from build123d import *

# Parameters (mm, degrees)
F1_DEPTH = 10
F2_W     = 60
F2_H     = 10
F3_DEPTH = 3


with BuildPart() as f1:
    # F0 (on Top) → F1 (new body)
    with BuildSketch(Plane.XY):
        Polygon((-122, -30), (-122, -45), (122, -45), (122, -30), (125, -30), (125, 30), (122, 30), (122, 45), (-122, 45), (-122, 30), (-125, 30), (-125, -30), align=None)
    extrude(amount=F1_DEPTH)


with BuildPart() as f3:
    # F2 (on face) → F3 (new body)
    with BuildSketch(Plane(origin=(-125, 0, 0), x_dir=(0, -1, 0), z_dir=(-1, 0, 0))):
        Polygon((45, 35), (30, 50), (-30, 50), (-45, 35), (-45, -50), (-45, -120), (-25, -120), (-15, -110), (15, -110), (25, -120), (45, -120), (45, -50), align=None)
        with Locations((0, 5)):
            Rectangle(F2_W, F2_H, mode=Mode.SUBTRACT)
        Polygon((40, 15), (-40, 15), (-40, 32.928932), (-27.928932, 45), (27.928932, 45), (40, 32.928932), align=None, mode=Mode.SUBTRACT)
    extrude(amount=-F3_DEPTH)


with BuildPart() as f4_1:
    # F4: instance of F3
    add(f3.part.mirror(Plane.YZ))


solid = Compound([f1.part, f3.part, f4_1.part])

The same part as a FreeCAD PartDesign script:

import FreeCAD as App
import Part
import Sketcher
from FreeCAD import Vector

doc = App.newDocument("Part")
params = doc.addObject("Spreadsheet::Sheet", "Params")
for row, (alias, value) in enumerate([
    ("sketch1_width", "244 mm"),
    ("sketch1_width2", "3 mm"),
    ("sketch1_height", "15 mm"),
    ("sketch1_height2", "60 mm"),
    ("pad1_length", "10 mm"),
    ("sketch2_width", "60 mm"),
    ("sketch2_width2", "20 mm"),
    ("sketch2_width3", "30 mm"),
    ("sketch2_width4", "80 mm"),
    ("sketch2_height", "155 mm"),
    ("pad2_length", "3 mm"),
], start=1):
    params.set(f"A{row}", alias)
    params.set(f"B{row}", "=" + value)
    params.setAlias(f"B{row}", alias)

body = doc.addObject("PartDesign::Body", "Body")

# Sketch on XY plane
sketch1 = body.newObject("Sketcher::SketchObject", "Sketch")
sketch1.AttachmentSupport = (doc.getObject("XY_Plane"), [""])
sketch1.MapMode = "FlatFace"
sketch1.addGeometry(Part.LineSegment(Vector(-122, -30, 0), Vector(-122, -45, 0)), False)
sketch1.addGeometry(Part.LineSegment(Vector(-122, -45, 0), Vector(122, -45, 0)), False)
sketch1.addGeometry(Part.LineSegment(Vector(122, -45, 0), Vector(122, -30, 0)), False)
sketch1.addGeometry(Part.LineSegment(Vector(122, -30, 0), Vector(125, -30, 0)), False)
sketch1.addGeometry(Part.LineSegment(Vector(125, -30, 0), Vector(125, 30, 0)), False)
sketch1.addGeometry(Part.LineSegment(Vector(125, 30, 0), Vector(122, 30, 0)), False)
sketch1.addGeometry(Part.LineSegment(Vector(122, 30, 0), Vector(122, 45, 0)), False)
sketch1.addGeometry(Part.LineSegment(Vector(122, 45, 0), Vector(-122, 45, 0)), False)
sketch1.addGeometry(Part.LineSegment(Vector(-122, 45, 0), Vector(-122, 30, 0)), False)
sketch1.addGeometry(Part.LineSegment(Vector(-122, 30, 0), Vector(-125, 30, 0)), False)
sketch1.addGeometry(Part.LineSegment(Vector(-125, 30, 0), Vector(-125, -30, 0)), False)
sketch1.addGeometry(Part.LineSegment(Vector(-125, -30, 0), Vector(-122, -30, 0)), False)
sketch1.addConstraint(Sketcher.Constraint("Coincident", 0, 2, 1, 1))
sketch1.addConstraint(Sketcher.Constraint("Coincident", 1, 2, 2, 1))
sketch1.addConstraint(Sketcher.Constraint("Coincident", 2, 2, 3, 1))
sketch1.addConstraint(Sketcher.Constraint("Coincident", 3, 2, 4, 1))
sketch1.addConstraint(Sketcher.Constraint("Coincident", 4, 2, 5, 1))
sketch1.addConstraint(Sketcher.Constraint("Coincident", 5, 2, 6, 1))
sketch1.addConstraint(Sketcher.Constraint("Coincident", 6, 2, 7, 1))
sketch1.addConstraint(Sketcher.Constraint("Coincident", 7, 2, 8, 1))
sketch1.addConstraint(Sketcher.Constraint("Coincident", 8, 2, 9, 1))
sketch1.addConstraint(Sketcher.Constraint("Coincident", 9, 2, 10, 1))
sketch1.addConstraint(Sketcher.Constraint("Coincident", 10, 2, 11, 1))
sketch1.addConstraint(Sketcher.Constraint("Coincident", 11, 2, 0, 1))
sketch1.addConstraint(Sketcher.Constraint("Vertical", 0))
sketch1.addConstraint(Sketcher.Constraint("Horizontal", 1))
sketch1.addConstraint(Sketcher.Constraint("Vertical", 2))
sketch1.addConstraint(Sketcher.Constraint("Horizontal", 3))
sketch1.addConstraint(Sketcher.Constraint("Vertical", 4))
sketch1.addConstraint(Sketcher.Constraint("Horizontal", 5))
sketch1.addConstraint(Sketcher.Constraint("Vertical", 6))
sketch1.addConstraint(Sketcher.Constraint("Horizontal", 7))
sketch1.addConstraint(Sketcher.Constraint("Vertical", 8))
sketch1.addConstraint(Sketcher.Constraint("Horizontal", 9))
sketch1.addConstraint(Sketcher.Constraint("Vertical", 10))
sketch1.addConstraint(Sketcher.Constraint("Horizontal", 11))
sketch1.addConstraint(Sketcher.Constraint("Symmetric", 0, 2, 6, 2, -1, 1))
sketch1.addConstraint(Sketcher.Constraint("Symmetric", 2, 2, 8, 2, -1, 1))
sketch1.addConstraint(Sketcher.Constraint("Symmetric", 4, 2, 10, 2, -1, 1))
sketch1.addConstraint(Sketcher.Constraint("Symmetric", 5, 2, 8, 2, -2))
sketch1.addConstraint(Sketcher.Constraint("DistanceX", 1, 1, 1, 2, 244.0))
sketch1.addConstraint(Sketcher.Constraint("DistanceX", 3, 1, 3, 2, 3.0))
sketch1.addConstraint(Sketcher.Constraint("DistanceY", 0, 2, 0, 1, 15.0))
sketch1.addConstraint(Sketcher.Constraint("DistanceY", 4, 1, 4, 2, 60.0))
sketch1.setExpression("Constraints[28]", "Params.sketch1_width")
sketch1.setExpression("Constraints[29]", "Params.sketch1_width2")
sketch1.setExpression("Constraints[30]", "Params.sketch1_height")
sketch1.setExpression("Constraints[31]", "Params.sketch1_height2")
pad1 = body.newObject("PartDesign::Pad", "Pad")
pad1.Profile = sketch1
pad1.setExpression("Length", "Params.pad1_length")
body2 = doc.addObject("PartDesign::Body", "Body001")

# Sketch on YZ plane
sketch2 = body2.newObject("Sketcher::SketchObject", "Sketch001")
sketch2.AttachmentSupport = (doc.getObject("YZ_Plane001"), [""])
sketch2.MapMode = "FlatFace"
sketch2.AttachmentOffset = App.Placement(Vector(0, 0, -125), App.Rotation())
sketch2.addGeometry(Part.LineSegment(Vector(-45, 35, 0), Vector(-30, 50, 0)), False)
sketch2.addGeometry(Part.LineSegment(Vector(-30, 50, 0), Vector(30, 50, 0)), False)
sketch2.addGeometry(Part.LineSegment(Vector(30, 50, 0), Vector(45, 35, 0)), False)
sketch2.addGeometry(Part.LineSegment(Vector(45, 35, 0), Vector(45, -120, 0)), False)
sketch2.addGeometry(Part.LineSegment(Vector(45, -120, 0), Vector(25, -120, 0)), False)
sketch2.addGeometry(Part.LineSegment(Vector(25, -120, 0), Vector(15, -110, 0)), False)
sketch2.addGeometry(Part.LineSegment(Vector(15, -110, 0), Vector(-15, -110, 0)), False)
sketch2.addGeometry(Part.LineSegment(Vector(-15, -110, 0), Vector(-25, -120, 0)), False)
sketch2.addGeometry(Part.LineSegment(Vector(-25, -120, 0), Vector(-45, -120, 0)), False)
sketch2.addGeometry(Part.LineSegment(Vector(-45, -120, 0), Vector(-45, 35, 0)), False)
sketch2.addGeometry(Part.LineSegment(Vector(-30, 0, 0), Vector(30, 0, 0)), False)
sketch2.addGeometry(Part.LineSegment(Vector(30, 0, 0), Vector(30, 10, 0)), False)
sketch2.addGeometry(Part.LineSegment(Vector(30, 10, 0), Vector(-30, 10, 0)), False)
sketch2.addGeometry(Part.LineSegment(Vector(-30, 10, 0), Vector(-30, 0, 0)), False)
sketch2.addGeometry(Part.LineSegment(Vector(-40, 32.928932, 0), Vector(-40, 15, 0)), False)
sketch2.addGeometry(Part.LineSegment(Vector(-40, 15, 0), Vector(40, 15, 0)), False)
sketch2.addGeometry(Part.LineSegment(Vector(40, 15, 0), Vector(40, 32.928932, 0)), False)
sketch2.addGeometry(Part.LineSegment(Vector(40, 32.928932, 0), Vector(27.928932, 45, 0)), False)
sketch2.addGeometry(Part.LineSegment(Vector(27.928932, 45, 0), Vector(-27.928932, 45, 0)), False)
sketch2.addGeometry(Part.LineSegment(Vector(-27.928932, 45, 0), Vector(-40, 32.928932, 0)), False)
sketch2.addConstraint(Sketcher.Constraint("Coincident", 0, 2, 1, 1))
sketch2.addConstraint(Sketcher.Constraint("Coincident", 1, 2, 2, 1))
sketch2.addConstraint(Sketcher.Constraint("Coincident", 2, 2, 3, 1))
sketch2.addConstraint(Sketcher.Constraint("Coincident", 3, 2, 4, 1))
sketch2.addConstraint(Sketcher.Constraint("Coincident", 4, 2, 5, 1))
sketch2.addConstraint(Sketcher.Constraint("Coincident", 5, 2, 6, 1))
sketch2.addConstraint(Sketcher.Constraint("Coincident", 6, 2, 7, 1))
sketch2.addConstraint(Sketcher.Constraint("Coincident", 7, 2, 8, 1))
sketch2.addConstraint(Sketcher.Constraint("Coincident", 8, 2, 9, 1))
sketch2.addConstraint(Sketcher.Constraint("Coincident", 9, 2, 0, 1))
sketch2.addConstraint(Sketcher.Constraint("Coincident", 10, 2, 11, 1))
sketch2.addConstraint(Sketcher.Constraint("Coincident", 11, 2, 12, 1))
sketch2.addConstraint(Sketcher.Constraint("Coincident", 12, 2, 13, 1))
sketch2.addConstraint(Sketcher.Constraint("Coincident", 13, 2, 10, 1))
sketch2.addConstraint(Sketcher.Constraint("Coincident", 14, 2, 15, 1))
sketch2.addConstraint(Sketcher.Constraint("Coincident", 15, 2, 16, 1))
sketch2.addConstraint(Sketcher.Constraint("Coincident", 16, 2, 17, 1))
sketch2.addConstraint(Sketcher.Constraint("Coincident", 17, 2, 18, 1))
sketch2.addConstraint(Sketcher.Constraint("Coincident", 18, 2, 19, 1))
sketch2.addConstraint(Sketcher.Constraint("Coincident", 19, 2, 14, 1))
sketch2.addConstraint(Sketcher.Constraint("Horizontal", 1))
sketch2.addConstraint(Sketcher.Constraint("Vertical", 3))
sketch2.addConstraint(Sketcher.Constraint("Horizontal", 4))
sketch2.addConstraint(Sketcher.Constraint("Horizontal", 6))
sketch2.addConstraint(Sketcher.Constraint("Horizontal", 8))
sketch2.addConstraint(Sketcher.Constraint("Vertical", 9))
sketch2.addConstraint(Sketcher.Constraint("Horizontal", 10))
sketch2.addConstraint(Sketcher.Constraint("Vertical", 11))
sketch2.addConstraint(Sketcher.Constraint("Horizontal", 12))
sketch2.addConstraint(Sketcher.Constraint("Vertical", 13))
sketch2.addConstraint(Sketcher.Constraint("Vertical", 14))
sketch2.addConstraint(Sketcher.Constraint("Horizontal", 15))
sketch2.addConstraint(Sketcher.Constraint("Vertical", 16))
sketch2.addConstraint(Sketcher.Constraint("Horizontal", 18))
sketch2.addConstraint(Sketcher.Constraint("Symmetric", 10, 2, 13, 2, -1, 1))
sketch2.addConstraint(Sketcher.Constraint("Symmetric", 4, 2, 7, 2, -2))
sketch2.addConstraint(Sketcher.Constraint("Symmetric", 2, 2, 9, 2, -2))
sketch2.addConstraint(Sketcher.Constraint("Symmetric", 16, 2, 19, 2, -2))
sketch2.addConstraint(Sketcher.Constraint("Perpendicular", 0, 2))
sketch2.addConstraint(Sketcher.Constraint("Parallel", 2, 5))
sketch2.addConstraint(Sketcher.Constraint("Perpendicular", 5, 7))
sketch2.addConstraint(Sketcher.Constraint("Perpendicular", 7, 17))
sketch2.addConstraint(Sketcher.Constraint("Perpendicular", 17, 19))
sketch2.addConstraint(Sketcher.Constraint("Vertical", 1, 2, 10, 2))
sketch2.addConstraint(Sketcher.Constraint("Vertical", 0, 2, 12, 2))
sketch2.addConstraint(Sketcher.Constraint("DistanceX", 1, 1, 1, 2, 60.0))
sketch2.addConstraint(Sketcher.Constraint("DistanceX", 4, 2, 4, 1, 20.0))
sketch2.addConstraint(Sketcher.Constraint("DistanceX", 6, 2, 6, 1, 30.0))
sketch2.addConstraint(Sketcher.Constraint("DistanceX", 15, 1, 15, 2, 80.0))
sketch2.addConstraint(Sketcher.Constraint("DistanceY", 3, 2, 3, 1, 155.0))
sketch2.addConstraint(Sketcher.Constraint("DistanceY", 11, 1, 11, 2, 10.0))
sketch2.addConstraint(Sketcher.Constraint("DistanceY", -1, 1, 0, 2, 50.0))
sketch2.addConstraint(Sketcher.Constraint("DistanceX", -1, 1, 2, 2, 45.0))
sketch2.addConstraint(Sketcher.Constraint("DistanceY", -1, 1, 14, 2, 15.0))
sketch2.addConstraint(Sketcher.Constraint("DistanceY", -1, 1, 17, 2, 45.0))
sketch2.addConstraint(Sketcher.Constraint("Distance", 17, 17.071068))
sketch2.setExpression("Constraints[45]", "Params.sketch2_width")
sketch2.setExpression("Constraints[46]", "Params.sketch2_width2")
sketch2.setExpression("Constraints[47]", "Params.sketch2_width3")
sketch2.setExpression("Constraints[48]", "Params.sketch2_width4")
sketch2.setExpression("Constraints[49]", "Params.sketch2_height")
pad2 = body2.newObject("PartDesign::Pad", "Pad001")
pad2.Profile = sketch2
pad2.setExpression("Length", "Params.pad2_length")
body3 = doc.addObject("PartDesign::Body", "Body002")
doc.recompute()

mirroring = doc.addObject("Part::Mirroring", "Mirroring")
mirroring.Source = body2
mirroring.Base = Vector(0, 0, 0)
mirroring.Normal = Vector(1, 0, 0)
body3.BaseFeature = mirroring
doc.recompute()
mirroring.Visibility = False

doc.recompute()
